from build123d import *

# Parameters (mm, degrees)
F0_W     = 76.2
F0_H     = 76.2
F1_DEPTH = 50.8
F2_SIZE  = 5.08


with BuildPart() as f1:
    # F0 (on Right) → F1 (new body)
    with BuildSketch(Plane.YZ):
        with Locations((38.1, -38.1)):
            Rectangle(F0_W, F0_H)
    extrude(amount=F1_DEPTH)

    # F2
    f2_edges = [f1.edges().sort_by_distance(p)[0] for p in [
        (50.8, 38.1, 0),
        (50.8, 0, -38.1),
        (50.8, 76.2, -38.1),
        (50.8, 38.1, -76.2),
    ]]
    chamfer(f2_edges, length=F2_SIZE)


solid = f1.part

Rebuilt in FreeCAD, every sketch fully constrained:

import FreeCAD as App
import Part
import Sketcher
Q = App.Units.Quantity


def edges_at(feature, points):
    """Names of the edges that pass closest to the given points."""
    edges = feature.Shape.Edges
    near = lambda p: min(range(len(edges)), key=lambda i: edges[i].distToShape(Part.Vertex(*p))[0])
    return sorted({f"Edge{near(p) + 1}" for p in points})

doc = App.newDocument("Part")
params = doc.addObject("Spreadsheet::Sheet", "Params")
for row, (alias, value) in enumerate([
    ("sketch1_width", "3 in"),
    ("pad1_length", "2 in"),
    ("chamfer_size", "0.2 in"),
], start=1):
    params.set(f"A{row}", alias)
    params.set(f"B{row}", "=" + value)
    params.setAlias(f"B{row}", alias)

body = doc.addObject("PartDesign::Body", "Body")

# Sketch on YZ plane
sketch1 = body.newObject("Sketcher::SketchObject", "Sketch")
sketch1.AttachmentSupport = (doc.getObject("YZ_Plane"), [""])
sketch1.MapMode = "FlatFace"
sketch1.addGeometry([
    Part.LineSegment(App.Vector(0, 0, 0), App.Vector(0, -76, 0)),
    Part.LineSegment(App.Vector(0, -76, 0), App.Vector(76, -76, 0)),
    Part.LineSegment(App.Vector(76, -76, 0), App.Vector(76, 0, 0)),
    Part.LineSegment(App.Vector(76, 0, 0), App.Vector(0, 0, 0)),
], False)
sketch1.addConstraint([
    Sketcher.Constraint("Coincident", 0, 2, 1, 1),
    Sketcher.Constraint("Coincident", 1, 2, 2, 1),
    Sketcher.Constraint("Coincident", 2, 2, 3, 1),
    Sketcher.Constraint("Coincident", 3, 2, 0, 1),
    Sketcher.Constraint("Vertical", 0),
    Sketcher.Constraint("Horizontal", 1),
    Sketcher.Constraint("Vertical", 2),
    Sketcher.Constraint("Horizontal", 3),
    Sketcher.Constraint("Coincident", 3, 2, -1, 1),
    Sketcher.Constraint("Equal", 3, 0),
    Sketcher.Constraint("DistanceX", 1, 1, 1, 2, Q("3 in")),
])
sketch1.setExpression("Constraints[10]", "Params.sketch1_width")
pad1 = body.newObject("PartDesign::Pad", "Pad")
pad1.Profile = sketch1
pad1.setExpression("Length", "Params.pad1_length")
doc.recompute()

chamfer = body.newObject("PartDesign::Chamfer", "Chamfer")
chamfer.Base = (pad1, edges_at(pad1, [
    (50.8, 38.1, 0),
    (50.8, 0, -38.1),
    (50.8, 76.2, -38.1),
    (50.8, 38.1, -76.2),
]))
chamfer.setExpression("Size", "Params.chamfer_size")

doc.recompute()
